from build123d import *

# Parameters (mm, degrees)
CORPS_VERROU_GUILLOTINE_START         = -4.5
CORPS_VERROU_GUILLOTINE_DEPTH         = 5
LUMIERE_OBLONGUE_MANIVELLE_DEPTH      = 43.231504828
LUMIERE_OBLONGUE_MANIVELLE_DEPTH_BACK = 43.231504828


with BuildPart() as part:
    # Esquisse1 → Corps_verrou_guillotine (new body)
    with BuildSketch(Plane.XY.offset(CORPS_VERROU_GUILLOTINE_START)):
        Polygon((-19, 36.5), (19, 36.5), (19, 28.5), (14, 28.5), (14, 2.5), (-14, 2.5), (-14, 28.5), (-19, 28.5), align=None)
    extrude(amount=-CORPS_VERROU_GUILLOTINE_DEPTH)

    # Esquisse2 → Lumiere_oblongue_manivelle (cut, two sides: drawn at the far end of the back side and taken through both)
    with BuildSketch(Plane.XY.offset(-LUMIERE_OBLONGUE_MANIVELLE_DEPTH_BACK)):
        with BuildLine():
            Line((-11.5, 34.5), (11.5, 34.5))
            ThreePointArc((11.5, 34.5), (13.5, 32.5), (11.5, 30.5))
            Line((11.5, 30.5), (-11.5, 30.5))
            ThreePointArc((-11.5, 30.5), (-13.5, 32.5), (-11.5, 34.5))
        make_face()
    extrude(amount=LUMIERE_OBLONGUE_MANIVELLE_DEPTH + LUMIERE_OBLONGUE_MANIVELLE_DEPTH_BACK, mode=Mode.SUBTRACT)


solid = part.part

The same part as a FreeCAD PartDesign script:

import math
import FreeCAD as App
import Part
import Sketcher

V = App.Vector
Q = App.Units.Quantity


def add_polygon(sketch, points):
    """Adds a closed chain of lines whose ends are joined by coincident constraints."""
    first, n = sketch.GeometryCount, len(points)
    for a, b in zip(points, points[1:] + points[:1]):
        sketch.addGeometry(Part.LineSegment(App.Vector(*a, 0), App.Vector(*b, 0)), False)
    for i in range(n):
        sketch.addConstraint(Sketcher.Constraint("Coincident", first + i, 2, first + (i + 1) % n, 1))

doc = App.newDocument("Part")
params = doc.addObject("Spreadsheet::Sheet", "Params")
for row, (alias, value) in enumerate([
    ("sketch1_width", "38 mm"),
    ("sketch1_width2", "5 mm"),
    ("sketch1_height", "8 mm"),
    ("sketch1_height2", "26 mm"),
    ("pad1_length", "5 mm"),
    ("sketch2_radius", "2 mm"),
    ("sketch2_width", "23 mm"),
], start=1):
    params.set(f"A{row}", alias)
    params.set(f"B{row}", "=" + value)
    params.setAlias(f"B{row}", alias)

body = doc.addObject("PartDesign::Body", "Body")

sketch1 = doc.addObject("Sketcher::SketchObject", "Sketch")
body.addObject(sketch1)
sketch1.AttachmentSupport = (doc.XY_Plane, [""])
sketch1.MapMode = "FlatFace"
sketch1.AttachmentOffset = App.Placement(V(0, 0, -4.5), App.Rotation())
add_polygon(sketch1, [(19, 36), (-19, 36), (-19, 28), (-14, 28), (-14, 2), (14, 2), (14, 28), (19, 28)])
sketch1.addConstraint(Sketcher.Constraint("Horizontal", 0))
sketch1.addConstraint(Sketcher.Constraint("Vertical", 1))
sketch1.addConstraint(Sketcher.Constraint("Horizontal", 2))
sketch1.addConstraint(Sketcher.Constraint("Vertical", 3))
sketch1.addConstraint(Sketcher.Constraint("Horizontal", 4))
sketch1.addConstraint(Sketcher.Constraint("Vertical", 5))
sketch1.addConstraint(Sketcher.Constraint("Horizontal", 6))
sketch1.addConstraint(Sketcher.Constraint("Vertical", 7))
sketch1.addConstraint(Sketcher.Constraint("Symmetric", 2, 2, 5, 2, -2))
sketch1.addConstraint(Sketcher.Constraint("Equal", 2, 6))
sketch1.addConstraint(Sketcher.Constraint("DistanceX", 0, 2, 0, 1, Q("38 mm")))
sketch1.addConstraint(Sketcher.Constraint("DistanceX", 2, 1, 2, 2, Q("5 mm")))
sketch1.addConstraint(Sketcher.Constraint("DistanceY", 1, 2, 1, 1, Q("8 mm")))
sketch1.addConstraint(Sketcher.Constraint("DistanceY", 3, 2, 3, 1, Q("26 mm")))
sketch1.addConstraint(Sketcher.Constraint("DistanceY", -1, 1, 0, 2, Q("36.5 mm")))
sketch1.setExpression("Constraints[18]", "Params.sketch1_width")
sketch1.setExpression("Constraints[19]", "Params.sketch1_width2")
sketch1.setExpression("Constraints[20]", "Params.sketch1_height")
sketch1.setExpression("Constraints[21]", "Params.sketch1_height2")
pad1 = doc.addObject("PartDesign::Pad", "Pad")
body.addObject(pad1)
pad1.Profile = sketch1
pad1.setExpression("Length", "Params.pad1_length")
pad1.Reversed = True

sketch2 = doc.addObject("Sketcher::SketchObject", "Sketch001")
body.addObject(sketch2)
sketch2.AttachmentSupport = (doc.XY_Plane, [""])
sketch2.MapMode = "FlatFace"
sketch2.addGeometry(Part.LineSegment(V(11.5, 34.5, 0), V(-11.5, 34.5, 0)), False)
sketch2.addGeometry(Part.ArcOfCircle(Part.Circle(V(-11.5, 32.5, 0), V(0, 0, 1), 2), math.radians(90), math.radians(270)), False)
sketch2.addGeometry(Part.LineSegment(V(-11.5, 30.5, 0), V(11.5, 30.5, 0)), False)
sketch2.addGeometry(Part.ArcOfCircle(Part.Circle(V(11.5, 32.5, 0), V(0, 0, 1), 2), math.radians(-90), math.radians(90)), False)
sketch2.addConstraint(Sketcher.Constraint("Tangent", 0, 2, 1, 1))
sketch2.addConstraint(Sketcher.Constraint("Tangent", 1, 2, 2, 1))
sketch2.addConstraint(Sketcher.Constraint("Tangent", 2, 2, 3, 1))
sketch2.addConstraint(Sketcher.Constraint("Tangent", 3, 2, 0, 1))
sketch2.addConstraint(Sketcher.Constraint("Horizontal", 0))
sketch2.addConstraint(Sketcher.Constraint("Horizontal", 2))
sketch2.addConstraint(Sketcher.Constraint("Radius", 1, Q("2 mm")))
sketch2.addConstraint(Sketcher.Constraint("DistanceX", 0, 2, 0, 1, Q("23 mm")))
sketch2.addConstraint(Sketcher.Constraint("DistanceX", 1, 3, -1, 1, Q("11.5 mm")))
sketch2.addConstraint(Sketcher.Constraint("DistanceY", -1, 1, 1, 3, Q("32.5 mm")))
sketch2.setExpression("Constraints[6]", "Params.sketch2_radius")
sketch2.setExpression("Constraints[7]", "Params.sketch2_width")
pocket1 = doc.addObject("PartDesign::Pocket", "Pocket")
body.addObject(pocket1)
pocket1.Profile = sketch2
pocket1.Type = "ThroughAll"
pocket1.Midplane = True

doc.recompute()
